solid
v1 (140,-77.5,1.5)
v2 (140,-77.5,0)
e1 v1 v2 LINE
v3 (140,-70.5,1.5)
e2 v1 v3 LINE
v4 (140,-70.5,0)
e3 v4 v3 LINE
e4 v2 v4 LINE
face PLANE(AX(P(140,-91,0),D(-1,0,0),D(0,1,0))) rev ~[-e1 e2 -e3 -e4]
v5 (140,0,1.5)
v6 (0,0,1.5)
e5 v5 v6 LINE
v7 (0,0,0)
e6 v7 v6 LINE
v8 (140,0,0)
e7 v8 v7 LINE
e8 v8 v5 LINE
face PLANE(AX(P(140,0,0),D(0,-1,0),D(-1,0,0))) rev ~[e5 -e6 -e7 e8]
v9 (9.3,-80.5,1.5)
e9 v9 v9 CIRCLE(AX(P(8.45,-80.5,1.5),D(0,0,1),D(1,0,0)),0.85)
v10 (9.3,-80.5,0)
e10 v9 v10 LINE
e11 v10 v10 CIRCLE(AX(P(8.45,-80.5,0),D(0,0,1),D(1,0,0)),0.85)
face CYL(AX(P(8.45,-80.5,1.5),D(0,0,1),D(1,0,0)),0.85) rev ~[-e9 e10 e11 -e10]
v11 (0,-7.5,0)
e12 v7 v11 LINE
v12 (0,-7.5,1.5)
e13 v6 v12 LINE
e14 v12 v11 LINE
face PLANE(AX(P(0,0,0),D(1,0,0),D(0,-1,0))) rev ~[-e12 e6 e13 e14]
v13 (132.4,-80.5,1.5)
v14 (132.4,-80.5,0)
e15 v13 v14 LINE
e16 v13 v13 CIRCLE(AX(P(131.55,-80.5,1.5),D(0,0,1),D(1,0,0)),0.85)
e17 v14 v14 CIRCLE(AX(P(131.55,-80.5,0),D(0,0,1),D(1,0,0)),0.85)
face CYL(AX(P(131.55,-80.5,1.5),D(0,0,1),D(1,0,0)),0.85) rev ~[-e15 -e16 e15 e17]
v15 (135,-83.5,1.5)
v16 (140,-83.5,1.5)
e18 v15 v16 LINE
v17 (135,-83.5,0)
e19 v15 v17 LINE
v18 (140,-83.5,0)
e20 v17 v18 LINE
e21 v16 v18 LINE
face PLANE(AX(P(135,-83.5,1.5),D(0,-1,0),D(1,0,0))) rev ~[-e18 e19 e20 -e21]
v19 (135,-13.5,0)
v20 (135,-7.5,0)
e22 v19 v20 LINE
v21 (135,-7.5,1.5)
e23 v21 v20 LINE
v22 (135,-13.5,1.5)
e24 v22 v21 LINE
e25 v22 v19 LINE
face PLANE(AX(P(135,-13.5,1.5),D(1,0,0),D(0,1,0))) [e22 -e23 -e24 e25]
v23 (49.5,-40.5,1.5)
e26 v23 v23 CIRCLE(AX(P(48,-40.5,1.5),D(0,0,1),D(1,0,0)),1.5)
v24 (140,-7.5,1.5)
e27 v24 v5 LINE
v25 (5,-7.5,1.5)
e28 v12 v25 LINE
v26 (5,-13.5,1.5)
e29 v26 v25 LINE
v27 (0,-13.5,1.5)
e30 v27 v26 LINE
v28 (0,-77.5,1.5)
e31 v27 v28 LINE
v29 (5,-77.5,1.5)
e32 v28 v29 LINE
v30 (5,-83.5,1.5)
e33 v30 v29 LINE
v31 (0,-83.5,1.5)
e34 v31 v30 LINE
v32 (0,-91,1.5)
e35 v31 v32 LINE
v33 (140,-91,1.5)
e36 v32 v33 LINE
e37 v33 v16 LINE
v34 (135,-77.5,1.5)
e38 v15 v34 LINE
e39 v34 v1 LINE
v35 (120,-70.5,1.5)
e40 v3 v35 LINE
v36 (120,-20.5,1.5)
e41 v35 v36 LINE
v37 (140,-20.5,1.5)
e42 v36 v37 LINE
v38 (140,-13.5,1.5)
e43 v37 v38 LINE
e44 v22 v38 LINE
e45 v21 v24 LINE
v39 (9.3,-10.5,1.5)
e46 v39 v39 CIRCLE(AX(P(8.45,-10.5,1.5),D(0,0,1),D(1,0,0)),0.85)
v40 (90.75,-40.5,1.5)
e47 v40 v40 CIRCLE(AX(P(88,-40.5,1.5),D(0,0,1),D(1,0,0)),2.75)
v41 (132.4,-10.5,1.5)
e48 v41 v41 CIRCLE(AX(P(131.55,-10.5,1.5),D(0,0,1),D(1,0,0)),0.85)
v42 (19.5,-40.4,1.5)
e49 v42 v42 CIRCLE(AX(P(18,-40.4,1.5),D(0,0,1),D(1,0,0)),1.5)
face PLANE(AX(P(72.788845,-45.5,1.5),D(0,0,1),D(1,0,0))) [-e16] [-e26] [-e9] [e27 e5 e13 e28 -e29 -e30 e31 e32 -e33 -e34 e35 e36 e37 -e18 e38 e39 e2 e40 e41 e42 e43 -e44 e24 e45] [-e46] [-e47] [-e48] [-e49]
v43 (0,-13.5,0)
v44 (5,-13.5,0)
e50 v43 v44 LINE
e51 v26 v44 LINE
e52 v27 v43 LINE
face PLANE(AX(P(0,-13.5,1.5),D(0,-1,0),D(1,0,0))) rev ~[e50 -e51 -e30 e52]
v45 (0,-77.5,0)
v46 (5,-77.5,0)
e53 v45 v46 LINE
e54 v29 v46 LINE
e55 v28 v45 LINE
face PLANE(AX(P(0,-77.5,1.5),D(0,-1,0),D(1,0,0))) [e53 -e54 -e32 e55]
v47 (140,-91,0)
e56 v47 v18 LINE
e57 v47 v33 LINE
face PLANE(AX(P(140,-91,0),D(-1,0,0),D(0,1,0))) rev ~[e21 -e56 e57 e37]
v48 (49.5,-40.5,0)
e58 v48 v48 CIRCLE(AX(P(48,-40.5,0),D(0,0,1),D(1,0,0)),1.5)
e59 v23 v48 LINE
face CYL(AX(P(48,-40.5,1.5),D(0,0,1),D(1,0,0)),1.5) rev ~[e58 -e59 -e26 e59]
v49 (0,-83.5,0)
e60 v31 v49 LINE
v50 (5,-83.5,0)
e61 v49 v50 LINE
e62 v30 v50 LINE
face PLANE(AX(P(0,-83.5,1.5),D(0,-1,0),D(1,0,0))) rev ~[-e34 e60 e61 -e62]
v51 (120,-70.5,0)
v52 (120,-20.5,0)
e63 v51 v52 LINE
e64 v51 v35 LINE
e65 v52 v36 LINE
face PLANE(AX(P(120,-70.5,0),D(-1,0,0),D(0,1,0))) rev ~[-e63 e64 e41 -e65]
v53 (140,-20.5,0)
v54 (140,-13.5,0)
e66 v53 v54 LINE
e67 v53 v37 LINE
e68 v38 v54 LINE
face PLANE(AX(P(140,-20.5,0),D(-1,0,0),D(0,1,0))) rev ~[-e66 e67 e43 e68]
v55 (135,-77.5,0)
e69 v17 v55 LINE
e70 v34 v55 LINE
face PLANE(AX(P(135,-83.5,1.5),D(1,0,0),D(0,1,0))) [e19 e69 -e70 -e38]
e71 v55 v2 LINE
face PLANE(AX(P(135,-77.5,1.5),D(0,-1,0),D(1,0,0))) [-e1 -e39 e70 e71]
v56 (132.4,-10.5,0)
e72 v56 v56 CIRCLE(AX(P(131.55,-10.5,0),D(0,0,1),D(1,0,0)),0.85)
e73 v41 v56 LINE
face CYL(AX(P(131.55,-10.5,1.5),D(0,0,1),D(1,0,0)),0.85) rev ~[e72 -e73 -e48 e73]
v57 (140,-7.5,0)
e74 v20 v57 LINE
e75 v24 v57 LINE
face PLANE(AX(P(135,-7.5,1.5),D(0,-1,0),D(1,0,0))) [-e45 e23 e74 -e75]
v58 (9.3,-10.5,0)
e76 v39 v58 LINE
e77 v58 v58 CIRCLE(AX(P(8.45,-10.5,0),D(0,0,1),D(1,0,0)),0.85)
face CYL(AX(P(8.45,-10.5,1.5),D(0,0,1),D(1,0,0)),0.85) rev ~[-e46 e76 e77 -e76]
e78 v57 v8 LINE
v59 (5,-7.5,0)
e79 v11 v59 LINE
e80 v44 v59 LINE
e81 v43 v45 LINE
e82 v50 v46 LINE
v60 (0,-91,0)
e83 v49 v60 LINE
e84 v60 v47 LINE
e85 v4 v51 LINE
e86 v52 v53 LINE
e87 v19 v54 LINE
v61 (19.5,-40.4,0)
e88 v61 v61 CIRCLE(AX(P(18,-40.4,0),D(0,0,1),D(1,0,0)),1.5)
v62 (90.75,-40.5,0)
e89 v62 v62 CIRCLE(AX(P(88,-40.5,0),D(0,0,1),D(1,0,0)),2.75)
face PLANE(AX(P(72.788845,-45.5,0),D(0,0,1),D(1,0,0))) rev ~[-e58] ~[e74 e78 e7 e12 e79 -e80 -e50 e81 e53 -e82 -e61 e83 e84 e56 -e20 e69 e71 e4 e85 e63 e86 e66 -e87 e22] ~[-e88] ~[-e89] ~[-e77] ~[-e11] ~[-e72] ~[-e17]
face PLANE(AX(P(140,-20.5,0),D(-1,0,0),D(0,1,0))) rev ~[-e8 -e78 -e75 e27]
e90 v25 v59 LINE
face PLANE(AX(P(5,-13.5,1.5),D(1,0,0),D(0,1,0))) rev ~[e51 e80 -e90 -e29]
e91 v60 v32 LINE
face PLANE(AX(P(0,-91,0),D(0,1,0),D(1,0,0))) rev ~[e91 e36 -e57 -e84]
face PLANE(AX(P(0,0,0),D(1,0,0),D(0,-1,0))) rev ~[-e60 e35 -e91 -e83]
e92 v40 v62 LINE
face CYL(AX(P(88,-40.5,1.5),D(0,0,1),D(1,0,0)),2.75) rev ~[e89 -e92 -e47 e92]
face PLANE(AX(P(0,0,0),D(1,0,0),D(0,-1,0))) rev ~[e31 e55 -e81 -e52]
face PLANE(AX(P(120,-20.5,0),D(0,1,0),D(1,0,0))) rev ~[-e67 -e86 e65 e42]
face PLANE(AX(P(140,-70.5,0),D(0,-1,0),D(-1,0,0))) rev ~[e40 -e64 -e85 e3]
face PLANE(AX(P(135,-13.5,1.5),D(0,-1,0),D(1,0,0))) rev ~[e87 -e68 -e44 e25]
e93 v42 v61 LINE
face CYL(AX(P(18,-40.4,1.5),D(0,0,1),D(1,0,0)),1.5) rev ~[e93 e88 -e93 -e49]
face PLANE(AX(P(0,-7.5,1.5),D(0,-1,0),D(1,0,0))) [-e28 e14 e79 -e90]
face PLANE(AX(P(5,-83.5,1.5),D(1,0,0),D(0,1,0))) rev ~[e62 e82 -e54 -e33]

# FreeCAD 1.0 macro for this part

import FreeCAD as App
import Part
import Sketcher

V = App.Vector

doc = App.newDocument("Part")
body = doc.addObject("PartDesign::Body", "Body")

sketch1 = body.newObject("Sketcher::SketchObject", "Sketch")
sketch1.AttachmentSupport = (doc.getObject("XY_Plane"), [""])
sketch1.MapMode = "FlatFace"
sketch1.addGeometry(Part.LineSegment(V(140, 0, 0), V(0, 0, 0)), False)
sketch1.addGeometry(Part.LineSegment(V(0, 0, 0), V(0, -91, 0)), False)
sketch1.addGeometry(Part.LineSegment(V(0, -91, 0), V(140, -91, 0)), False)
sketch1.addGeometry(Part.LineSegment(V(140, -91, 0), V(140, -70.5, 0)), False)
sketch1.addGeometry(Part.LineSegment(V(140, -70.5, 0), V(120, -70.5, 0)), False)
sketch1.addGeometry(Part.LineSegment(V(120, -70.5, 0), V(120, -20.5, 0)), False)
sketch1.addGeometry(Part.LineSegment(V(120, -20.5, 0), V(140, -20.5, 0)), False)
sketch1.addGeometry(Part.LineSegment(V(140, -20.5, 0), V(140, 0, 0)), False)
sketch1.addConstraint(Sketcher.Constraint("Coincident", 0, 2, 1, 1))
sketch1.addConstraint(Sketcher.Constraint("Coincident", 1, 2, 2, 1))
sketch1.addConstraint(Sketcher.Constraint("Coincident", 2, 2, 3, 1))
sketch1.addConstraint(Sketcher.Constraint("Coincident", 3, 2, 4, 1))
sketch1.addConstraint(Sketcher.Constraint("Coincident", 4, 2, 5, 1))
sketch1.addConstraint(Sketcher.Constraint("Coincident", 5, 2, 6, 1))
sketch1.addConstraint(Sketcher.Constraint("Coincident", 6, 2, 7, 1))
sketch1.addConstraint(Sketcher.Constraint("Coincident", 7, 2, 0, 1))
sketch1.addConstraint(Sketcher.Constraint("Horizontal", 0))
sketch1.addConstraint(Sketcher.Constraint("Vertical", 1))
sketch1.addConstraint(Sketcher.Constraint("Horizontal", 2))
sketch1.addConstraint(Sketcher.Constraint("Vertical", 3))
sketch1.addConstraint(Sketcher.Constraint("Horizontal", 4))
sketch1.addConstraint(Sketcher.Constraint("Vertical", 5))
sketch1.addConstraint(Sketcher.Constraint("Horizontal", 6))
sketch1.addConstraint(Sketcher.Constraint("Vertical", 7))
sketch1.addConstraint(Sketcher.Constraint("Coincident", 0, 2, -1, 1))
sketch1.addConstraint(Sketcher.Constraint("Vertical", 3, 2, 6, 2))
sketch1.addConstraint(Sketcher.Constraint("Equal", 3, 7))
sketch1.addConstraint(Sketcher.Constraint("DistanceX", 0, 2, 0, 1, 140.0))
sketch1.addConstraint(Sketcher.Constraint("DistanceX", 4, 2, 4, 1, 20.0))
sketch1.addConstraint(Sketcher.Constraint("DistanceY", 1, 2, 1, 1, 91.0))
sketch1.addConstraint(Sketcher.Constraint("DistanceY", 5, 1, 5, 2, 50.0))
pad1 = body.newObject("PartDesign::Pad", "Pad")
pad1.Profile = sketch1
pad1.Length = 1.5

sketch2 = body.newObject("Sketcher::SketchObject", "Sketch001")
sketch2.AttachmentSupport = (doc.getObject("XY_Plane"), [""])
sketch2.MapMode = "FlatFace"
sketch2.AttachmentOffset = App.Placement(V(0, 0, 1.5), App.Rotation())
sketch2.addGeometry(Part.Circle(V(18, -40.4, 0), V(0, 0, 1), 1.5), False)
sketch2.addGeometry(Part.Circle(V(48, -40.5, 0), V(0, 0, 1), 1.5), False)
sketch2.addGeometry(Part.Circle(V(88, -40.5, 0), V(0, 0, 1), 2.75), False)
sketch2.addConstraint(Sketcher.Constraint("Equal", 0, 1))
sketch2.addConstraint(Sketcher.Constraint("Horizontal", 1, 3, 2, 3))
sketch2.addConstraint(Sketcher.Constraint("Diameter", 0, 3.0))
sketch2.addConstraint(Sketcher.Constraint("Diameter", 2, 5.5))
sketch2.addConstraint(Sketcher.Constraint("DistanceX", -1, 1, 0, 3, 18.0))
sketch2.addConstraint(Sketcher.Constraint("DistanceX", -1, 1, 1, 3, 48.0))
sketch2.addConstraint(Sketcher.Constraint("DistanceX", -1, 1, 2, 3, 88.0))
sketch2.addConstraint(Sketcher.Constraint("DistanceY", 0, 3, -1, 1, 40.4))
sketch2.addConstraint(Sketcher.Constraint("DistanceY", 1, 3, -1, 1, 40.5))
pocket1 = body.newObject("PartDesign::Pocket", "Pocket")
pocket1.Profile = sketch2
pocket1.Length = 1.5

sketch3 = body.newObject("Sketcher::SketchObject", "Sketch002")
sketch3.AttachmentSupport = (doc.getObject("XY_Plane"), [""])
sketch3.MapMode = "FlatFace"
sketch3.AttachmentOffset = App.Placement(V(0, 0, 1.5), App.Rotation())
sketch3.addGeometry(Part.LineSegment(V(0, -7.5, 0), V(0, -13.5, 0)), False)
sketch3.addGeometry(Part.LineSegment(V(0, -13.5, 0), V(5, -13.5, 0)), False)
sketch3.addGeometry(Part.LineSegment(V(5, -13.5, 0), V(5, -7.5, 0)), False)
sketch3.addGeometry(Part.LineSegment(V(5, -7.5, 0), V(0, -7.5, 0)), False)
sketch3.addGeometry(Part.LineSegment(V(0, -77.5, 0), V(0, -83.5, 0)), False)
sketch3.addGeometry(Part.LineSegment(V(0, -83.5, 0), V(5, -83.5, 0)), False)
sketch3.addGeometry(Part.LineSegment(V(5, -83.5, 0), V(5, -77.5, 0)), False)
sketch3.addGeometry(Part.LineSegment(V(5, -77.5, 0), V(0, -77.5, 0)), False)
sketch3.addGeometry(Part.LineSegment(V(135, -77.5, 0), V(135, -83.5, 0)), False)
sketch3.addGeometry(Part.LineSegment(V(135, -83.5, 0), V(140, -83.5, 0)), False)
sketch3.addGeometry(Part.LineSegment(V(140, -83.5, 0), V(140, -77.5, 0)), False)
sketch3.addGeometry(Part.LineSegment(V(140, -77.5, 0), V(135, -77.5, 0)), False)
sketch3.addGeometry(Part.LineSegment(V(135, -7.5, 0), V(135, -13.5, 0)), False)
sketch3.addGeometry(Part.LineSegment(V(135, -13.5, 0), V(140, -13.5, 0)), False)
sketch3.addGeometry(Part.LineSegment(V(140, -13.5, 0), V(140, -7.5, 0)), False)
sketch3.addGeometry(Part.LineSegment(V(140, -7.5, 0), V(135, -7.5, 0)), False)
sketch3.addGeometry(Part.Circle(V(8.45, -10.5, 0), V(0, 0, 1), 0.85), False)
sketch3.addGeometry(Part.Circle(V(8.45, -80.5, 0), V(0, 0, 1), 0.85), False)
sketch3.addGeometry(Part.Circle(V(131.55, -80.5, 0), V(0, 0, 1), 0.85), False)
sketch3.addGeometry(Part.Circle(V(131.55, -10.5, 0), V(0, 0, 1), 0.85), False)
sketch3.addConstraint(Sketcher.Constraint("Coincident", 0, 2, 1, 1))
sketch3.addConstraint(Sketcher.Constraint("Coincident", 1, 2, 2, 1))
sketch3.addConstraint(Sketcher.Constraint("Coincident", 2, 2, 3, 1))
sketch3.addConstraint(Sketcher.Constraint("Coincident", 3, 2, 0, 1))
sketch3.addConstraint(Sketcher.Constraint("Coincident", 4, 2, 5, 1))
sketch3.addConstraint(Sketcher.Constraint("Coincident", 5, 2, 6, 1))
sketch3.addConstraint(Sketcher.Constraint("Coincident", 6, 2, 7, 1))
sketch3.addConstraint(Sketcher.Constraint("Coincident", 7, 2, 4, 1))
sketch3.addConstraint(Sketcher.Constraint("Coincident", 8, 2, 9, 1))
sketch3.addConstraint(Sketcher.Constraint("Coincident", 9, 2, 10, 1))
sketch3.addConstraint(Sketcher.Constraint("Coincident", 10, 2, 11, 1))
sketch3.addConstraint(Sketcher.Constraint("Coincident", 11, 2, 8, 1))
sketch3.addConstraint(Sketcher.Constraint("Coincident", 12, 2, 13, 1))
sketch3.addConstraint(Sketcher.Constraint("Coincident", 13, 2, 14, 1))
sketch3.addConstraint(Sketcher.Constraint("Coincident", 14, 2, 15, 1))
sketch3.addConstraint(Sketcher.Constraint("Coincident", 15, 2, 12, 1))
sketch3.addConstraint(Sketcher.Constraint("Vertical", 0))
sketch3.addConstraint(Sketcher.Constraint("Horizontal", 1))
sketch3.addConstraint(Sketcher.Constraint("Vertical", 2))
sketch3.addConstraint(Sketcher.Constraint("Horizontal", 3))
sketch3.addConstraint(Sketcher.Constraint("Vertical", 4))
sketch3.addConstraint(Sketcher.Constraint("Horizontal", 5))
sketch3.addConstraint(Sketcher.Constraint("Vertical", 6))
sketch3.addConstraint(Sketcher.Constraint("Horizontal", 7))
sketch3.addConstraint(Sketcher.Constraint("Vertical", 8))
sketch3.addConstraint(Sketcher.Constraint("Horizontal", 9))
sketch3.addConstraint(Sketcher.Constraint("Vertical", 10))
sketch3.addConstraint(Sketcher.Constraint("Horizontal", 11))
sketch3.addConstraint(Sketcher.Constraint("Vertical", 12))
sketch3.addConstraint(Sketcher.Constraint("Horizontal", 13))
sketch3.addConstraint(Sketcher.Constraint("Vertical", 14))
sketch3.addConstraint(Sketcher.Constraint("Horizontal", 15))
sketch3.addConstraint(Sketcher.Constraint("Equal", 16, 17))
sketch3.addConstraint(Sketcher.Constraint("Equal", 17, 18))
sketch3.addConstraint(Sketcher.Constraint("Equal", 18, 19))
sketch3.addConstraint(Sketcher.Constraint("PointOnObject", 0, 2, -2))
sketch3.addConstraint(Sketcher.Constraint("PointOnObject", 4, 2, -2))
sketch3.addConstraint(Sketcher.Constraint("Horizontal", 17, 3, 18, 3))
sketch3.addConstraint(Sketcher.Constraint("Horizontal", 16, 3, 19, 3))
sketch3.addConstraint(Sketcher.Constraint("Horizontal", 5, 2, 8, 2))
sketch3.addConstraint(Sketcher.Constraint("Horizontal", 7, 2, 10, 2))
sketch3.addConstraint(Sketcher.Constraint("Horizontal", 1, 2, 12, 2))
sketch3.addConstraint(Sketcher.Constraint("Horizontal", 3, 2, 14, 2))
sketch3.addConstraint(Sketcher.Constraint("Vertical", 16, 3, 17, 3))
sketch3.addConstraint(Sketcher.Constraint("Vertical", 18, 3, 19, 3))
sketch3.addConstraint(Sketcher.Constraint("Vertical", 2, 2, 5, 2))
sketch3.addConstraint(Sketcher.Constraint("Vertical", 11, 2, 12, 2))
sketch3.addConstraint(Sketcher.Constraint("Vertical", 10, 2, 13, 2))
sketch3.addConstraint(Sketcher.Constraint("Equal", 7, 9))
sketch3.addConstraint(Sketcher.Constraint("Equal", 2, 4))
sketch3.addConstraint(Sketcher.Constraint("Diameter", 16, 1.7))
sketch3.addConstraint(Sketcher.Constraint("DistanceX", 1, 1, 1, 2, 5.0))
sketch3.addConstraint(Sketcher.Constraint("DistanceY", 0, 2, 0, 1, 6.0))
sketch3.addConstraint(Sketcher.Constraint("DistanceX", -1, 1, 8, 2, 135.0))
sketch3.addConstraint(Sketcher.Constraint("DistanceY", 17, 3, 16, 3, 70.0))
sketch3.addConstraint(Sketcher.Constraint("DistanceY", 0, 2, 16, 3, 3.0))
sketch3.addConstraint(Sketcher.Constraint("DistanceY", 4, 2, 17, 3, 3.0))
sketch3.addConstraint(Sketcher.Constraint("DistanceY", 16, 3, -1, 1, 10.5))
sketch3.addConstraint(Sketcher.Constraint("DistanceX", 17, 3, 18, 3, 123.1))
sketch3.addConstraint(Sketcher.Constraint("DistanceX", -1, 1, 16, 3, 8.45))
pocket2 = body.newObject("PartDesign::Pocket", "Pocket001")
pocket2.Profile = sketch3
pocket2.Type = "ThroughAll"

doc.recompute()
